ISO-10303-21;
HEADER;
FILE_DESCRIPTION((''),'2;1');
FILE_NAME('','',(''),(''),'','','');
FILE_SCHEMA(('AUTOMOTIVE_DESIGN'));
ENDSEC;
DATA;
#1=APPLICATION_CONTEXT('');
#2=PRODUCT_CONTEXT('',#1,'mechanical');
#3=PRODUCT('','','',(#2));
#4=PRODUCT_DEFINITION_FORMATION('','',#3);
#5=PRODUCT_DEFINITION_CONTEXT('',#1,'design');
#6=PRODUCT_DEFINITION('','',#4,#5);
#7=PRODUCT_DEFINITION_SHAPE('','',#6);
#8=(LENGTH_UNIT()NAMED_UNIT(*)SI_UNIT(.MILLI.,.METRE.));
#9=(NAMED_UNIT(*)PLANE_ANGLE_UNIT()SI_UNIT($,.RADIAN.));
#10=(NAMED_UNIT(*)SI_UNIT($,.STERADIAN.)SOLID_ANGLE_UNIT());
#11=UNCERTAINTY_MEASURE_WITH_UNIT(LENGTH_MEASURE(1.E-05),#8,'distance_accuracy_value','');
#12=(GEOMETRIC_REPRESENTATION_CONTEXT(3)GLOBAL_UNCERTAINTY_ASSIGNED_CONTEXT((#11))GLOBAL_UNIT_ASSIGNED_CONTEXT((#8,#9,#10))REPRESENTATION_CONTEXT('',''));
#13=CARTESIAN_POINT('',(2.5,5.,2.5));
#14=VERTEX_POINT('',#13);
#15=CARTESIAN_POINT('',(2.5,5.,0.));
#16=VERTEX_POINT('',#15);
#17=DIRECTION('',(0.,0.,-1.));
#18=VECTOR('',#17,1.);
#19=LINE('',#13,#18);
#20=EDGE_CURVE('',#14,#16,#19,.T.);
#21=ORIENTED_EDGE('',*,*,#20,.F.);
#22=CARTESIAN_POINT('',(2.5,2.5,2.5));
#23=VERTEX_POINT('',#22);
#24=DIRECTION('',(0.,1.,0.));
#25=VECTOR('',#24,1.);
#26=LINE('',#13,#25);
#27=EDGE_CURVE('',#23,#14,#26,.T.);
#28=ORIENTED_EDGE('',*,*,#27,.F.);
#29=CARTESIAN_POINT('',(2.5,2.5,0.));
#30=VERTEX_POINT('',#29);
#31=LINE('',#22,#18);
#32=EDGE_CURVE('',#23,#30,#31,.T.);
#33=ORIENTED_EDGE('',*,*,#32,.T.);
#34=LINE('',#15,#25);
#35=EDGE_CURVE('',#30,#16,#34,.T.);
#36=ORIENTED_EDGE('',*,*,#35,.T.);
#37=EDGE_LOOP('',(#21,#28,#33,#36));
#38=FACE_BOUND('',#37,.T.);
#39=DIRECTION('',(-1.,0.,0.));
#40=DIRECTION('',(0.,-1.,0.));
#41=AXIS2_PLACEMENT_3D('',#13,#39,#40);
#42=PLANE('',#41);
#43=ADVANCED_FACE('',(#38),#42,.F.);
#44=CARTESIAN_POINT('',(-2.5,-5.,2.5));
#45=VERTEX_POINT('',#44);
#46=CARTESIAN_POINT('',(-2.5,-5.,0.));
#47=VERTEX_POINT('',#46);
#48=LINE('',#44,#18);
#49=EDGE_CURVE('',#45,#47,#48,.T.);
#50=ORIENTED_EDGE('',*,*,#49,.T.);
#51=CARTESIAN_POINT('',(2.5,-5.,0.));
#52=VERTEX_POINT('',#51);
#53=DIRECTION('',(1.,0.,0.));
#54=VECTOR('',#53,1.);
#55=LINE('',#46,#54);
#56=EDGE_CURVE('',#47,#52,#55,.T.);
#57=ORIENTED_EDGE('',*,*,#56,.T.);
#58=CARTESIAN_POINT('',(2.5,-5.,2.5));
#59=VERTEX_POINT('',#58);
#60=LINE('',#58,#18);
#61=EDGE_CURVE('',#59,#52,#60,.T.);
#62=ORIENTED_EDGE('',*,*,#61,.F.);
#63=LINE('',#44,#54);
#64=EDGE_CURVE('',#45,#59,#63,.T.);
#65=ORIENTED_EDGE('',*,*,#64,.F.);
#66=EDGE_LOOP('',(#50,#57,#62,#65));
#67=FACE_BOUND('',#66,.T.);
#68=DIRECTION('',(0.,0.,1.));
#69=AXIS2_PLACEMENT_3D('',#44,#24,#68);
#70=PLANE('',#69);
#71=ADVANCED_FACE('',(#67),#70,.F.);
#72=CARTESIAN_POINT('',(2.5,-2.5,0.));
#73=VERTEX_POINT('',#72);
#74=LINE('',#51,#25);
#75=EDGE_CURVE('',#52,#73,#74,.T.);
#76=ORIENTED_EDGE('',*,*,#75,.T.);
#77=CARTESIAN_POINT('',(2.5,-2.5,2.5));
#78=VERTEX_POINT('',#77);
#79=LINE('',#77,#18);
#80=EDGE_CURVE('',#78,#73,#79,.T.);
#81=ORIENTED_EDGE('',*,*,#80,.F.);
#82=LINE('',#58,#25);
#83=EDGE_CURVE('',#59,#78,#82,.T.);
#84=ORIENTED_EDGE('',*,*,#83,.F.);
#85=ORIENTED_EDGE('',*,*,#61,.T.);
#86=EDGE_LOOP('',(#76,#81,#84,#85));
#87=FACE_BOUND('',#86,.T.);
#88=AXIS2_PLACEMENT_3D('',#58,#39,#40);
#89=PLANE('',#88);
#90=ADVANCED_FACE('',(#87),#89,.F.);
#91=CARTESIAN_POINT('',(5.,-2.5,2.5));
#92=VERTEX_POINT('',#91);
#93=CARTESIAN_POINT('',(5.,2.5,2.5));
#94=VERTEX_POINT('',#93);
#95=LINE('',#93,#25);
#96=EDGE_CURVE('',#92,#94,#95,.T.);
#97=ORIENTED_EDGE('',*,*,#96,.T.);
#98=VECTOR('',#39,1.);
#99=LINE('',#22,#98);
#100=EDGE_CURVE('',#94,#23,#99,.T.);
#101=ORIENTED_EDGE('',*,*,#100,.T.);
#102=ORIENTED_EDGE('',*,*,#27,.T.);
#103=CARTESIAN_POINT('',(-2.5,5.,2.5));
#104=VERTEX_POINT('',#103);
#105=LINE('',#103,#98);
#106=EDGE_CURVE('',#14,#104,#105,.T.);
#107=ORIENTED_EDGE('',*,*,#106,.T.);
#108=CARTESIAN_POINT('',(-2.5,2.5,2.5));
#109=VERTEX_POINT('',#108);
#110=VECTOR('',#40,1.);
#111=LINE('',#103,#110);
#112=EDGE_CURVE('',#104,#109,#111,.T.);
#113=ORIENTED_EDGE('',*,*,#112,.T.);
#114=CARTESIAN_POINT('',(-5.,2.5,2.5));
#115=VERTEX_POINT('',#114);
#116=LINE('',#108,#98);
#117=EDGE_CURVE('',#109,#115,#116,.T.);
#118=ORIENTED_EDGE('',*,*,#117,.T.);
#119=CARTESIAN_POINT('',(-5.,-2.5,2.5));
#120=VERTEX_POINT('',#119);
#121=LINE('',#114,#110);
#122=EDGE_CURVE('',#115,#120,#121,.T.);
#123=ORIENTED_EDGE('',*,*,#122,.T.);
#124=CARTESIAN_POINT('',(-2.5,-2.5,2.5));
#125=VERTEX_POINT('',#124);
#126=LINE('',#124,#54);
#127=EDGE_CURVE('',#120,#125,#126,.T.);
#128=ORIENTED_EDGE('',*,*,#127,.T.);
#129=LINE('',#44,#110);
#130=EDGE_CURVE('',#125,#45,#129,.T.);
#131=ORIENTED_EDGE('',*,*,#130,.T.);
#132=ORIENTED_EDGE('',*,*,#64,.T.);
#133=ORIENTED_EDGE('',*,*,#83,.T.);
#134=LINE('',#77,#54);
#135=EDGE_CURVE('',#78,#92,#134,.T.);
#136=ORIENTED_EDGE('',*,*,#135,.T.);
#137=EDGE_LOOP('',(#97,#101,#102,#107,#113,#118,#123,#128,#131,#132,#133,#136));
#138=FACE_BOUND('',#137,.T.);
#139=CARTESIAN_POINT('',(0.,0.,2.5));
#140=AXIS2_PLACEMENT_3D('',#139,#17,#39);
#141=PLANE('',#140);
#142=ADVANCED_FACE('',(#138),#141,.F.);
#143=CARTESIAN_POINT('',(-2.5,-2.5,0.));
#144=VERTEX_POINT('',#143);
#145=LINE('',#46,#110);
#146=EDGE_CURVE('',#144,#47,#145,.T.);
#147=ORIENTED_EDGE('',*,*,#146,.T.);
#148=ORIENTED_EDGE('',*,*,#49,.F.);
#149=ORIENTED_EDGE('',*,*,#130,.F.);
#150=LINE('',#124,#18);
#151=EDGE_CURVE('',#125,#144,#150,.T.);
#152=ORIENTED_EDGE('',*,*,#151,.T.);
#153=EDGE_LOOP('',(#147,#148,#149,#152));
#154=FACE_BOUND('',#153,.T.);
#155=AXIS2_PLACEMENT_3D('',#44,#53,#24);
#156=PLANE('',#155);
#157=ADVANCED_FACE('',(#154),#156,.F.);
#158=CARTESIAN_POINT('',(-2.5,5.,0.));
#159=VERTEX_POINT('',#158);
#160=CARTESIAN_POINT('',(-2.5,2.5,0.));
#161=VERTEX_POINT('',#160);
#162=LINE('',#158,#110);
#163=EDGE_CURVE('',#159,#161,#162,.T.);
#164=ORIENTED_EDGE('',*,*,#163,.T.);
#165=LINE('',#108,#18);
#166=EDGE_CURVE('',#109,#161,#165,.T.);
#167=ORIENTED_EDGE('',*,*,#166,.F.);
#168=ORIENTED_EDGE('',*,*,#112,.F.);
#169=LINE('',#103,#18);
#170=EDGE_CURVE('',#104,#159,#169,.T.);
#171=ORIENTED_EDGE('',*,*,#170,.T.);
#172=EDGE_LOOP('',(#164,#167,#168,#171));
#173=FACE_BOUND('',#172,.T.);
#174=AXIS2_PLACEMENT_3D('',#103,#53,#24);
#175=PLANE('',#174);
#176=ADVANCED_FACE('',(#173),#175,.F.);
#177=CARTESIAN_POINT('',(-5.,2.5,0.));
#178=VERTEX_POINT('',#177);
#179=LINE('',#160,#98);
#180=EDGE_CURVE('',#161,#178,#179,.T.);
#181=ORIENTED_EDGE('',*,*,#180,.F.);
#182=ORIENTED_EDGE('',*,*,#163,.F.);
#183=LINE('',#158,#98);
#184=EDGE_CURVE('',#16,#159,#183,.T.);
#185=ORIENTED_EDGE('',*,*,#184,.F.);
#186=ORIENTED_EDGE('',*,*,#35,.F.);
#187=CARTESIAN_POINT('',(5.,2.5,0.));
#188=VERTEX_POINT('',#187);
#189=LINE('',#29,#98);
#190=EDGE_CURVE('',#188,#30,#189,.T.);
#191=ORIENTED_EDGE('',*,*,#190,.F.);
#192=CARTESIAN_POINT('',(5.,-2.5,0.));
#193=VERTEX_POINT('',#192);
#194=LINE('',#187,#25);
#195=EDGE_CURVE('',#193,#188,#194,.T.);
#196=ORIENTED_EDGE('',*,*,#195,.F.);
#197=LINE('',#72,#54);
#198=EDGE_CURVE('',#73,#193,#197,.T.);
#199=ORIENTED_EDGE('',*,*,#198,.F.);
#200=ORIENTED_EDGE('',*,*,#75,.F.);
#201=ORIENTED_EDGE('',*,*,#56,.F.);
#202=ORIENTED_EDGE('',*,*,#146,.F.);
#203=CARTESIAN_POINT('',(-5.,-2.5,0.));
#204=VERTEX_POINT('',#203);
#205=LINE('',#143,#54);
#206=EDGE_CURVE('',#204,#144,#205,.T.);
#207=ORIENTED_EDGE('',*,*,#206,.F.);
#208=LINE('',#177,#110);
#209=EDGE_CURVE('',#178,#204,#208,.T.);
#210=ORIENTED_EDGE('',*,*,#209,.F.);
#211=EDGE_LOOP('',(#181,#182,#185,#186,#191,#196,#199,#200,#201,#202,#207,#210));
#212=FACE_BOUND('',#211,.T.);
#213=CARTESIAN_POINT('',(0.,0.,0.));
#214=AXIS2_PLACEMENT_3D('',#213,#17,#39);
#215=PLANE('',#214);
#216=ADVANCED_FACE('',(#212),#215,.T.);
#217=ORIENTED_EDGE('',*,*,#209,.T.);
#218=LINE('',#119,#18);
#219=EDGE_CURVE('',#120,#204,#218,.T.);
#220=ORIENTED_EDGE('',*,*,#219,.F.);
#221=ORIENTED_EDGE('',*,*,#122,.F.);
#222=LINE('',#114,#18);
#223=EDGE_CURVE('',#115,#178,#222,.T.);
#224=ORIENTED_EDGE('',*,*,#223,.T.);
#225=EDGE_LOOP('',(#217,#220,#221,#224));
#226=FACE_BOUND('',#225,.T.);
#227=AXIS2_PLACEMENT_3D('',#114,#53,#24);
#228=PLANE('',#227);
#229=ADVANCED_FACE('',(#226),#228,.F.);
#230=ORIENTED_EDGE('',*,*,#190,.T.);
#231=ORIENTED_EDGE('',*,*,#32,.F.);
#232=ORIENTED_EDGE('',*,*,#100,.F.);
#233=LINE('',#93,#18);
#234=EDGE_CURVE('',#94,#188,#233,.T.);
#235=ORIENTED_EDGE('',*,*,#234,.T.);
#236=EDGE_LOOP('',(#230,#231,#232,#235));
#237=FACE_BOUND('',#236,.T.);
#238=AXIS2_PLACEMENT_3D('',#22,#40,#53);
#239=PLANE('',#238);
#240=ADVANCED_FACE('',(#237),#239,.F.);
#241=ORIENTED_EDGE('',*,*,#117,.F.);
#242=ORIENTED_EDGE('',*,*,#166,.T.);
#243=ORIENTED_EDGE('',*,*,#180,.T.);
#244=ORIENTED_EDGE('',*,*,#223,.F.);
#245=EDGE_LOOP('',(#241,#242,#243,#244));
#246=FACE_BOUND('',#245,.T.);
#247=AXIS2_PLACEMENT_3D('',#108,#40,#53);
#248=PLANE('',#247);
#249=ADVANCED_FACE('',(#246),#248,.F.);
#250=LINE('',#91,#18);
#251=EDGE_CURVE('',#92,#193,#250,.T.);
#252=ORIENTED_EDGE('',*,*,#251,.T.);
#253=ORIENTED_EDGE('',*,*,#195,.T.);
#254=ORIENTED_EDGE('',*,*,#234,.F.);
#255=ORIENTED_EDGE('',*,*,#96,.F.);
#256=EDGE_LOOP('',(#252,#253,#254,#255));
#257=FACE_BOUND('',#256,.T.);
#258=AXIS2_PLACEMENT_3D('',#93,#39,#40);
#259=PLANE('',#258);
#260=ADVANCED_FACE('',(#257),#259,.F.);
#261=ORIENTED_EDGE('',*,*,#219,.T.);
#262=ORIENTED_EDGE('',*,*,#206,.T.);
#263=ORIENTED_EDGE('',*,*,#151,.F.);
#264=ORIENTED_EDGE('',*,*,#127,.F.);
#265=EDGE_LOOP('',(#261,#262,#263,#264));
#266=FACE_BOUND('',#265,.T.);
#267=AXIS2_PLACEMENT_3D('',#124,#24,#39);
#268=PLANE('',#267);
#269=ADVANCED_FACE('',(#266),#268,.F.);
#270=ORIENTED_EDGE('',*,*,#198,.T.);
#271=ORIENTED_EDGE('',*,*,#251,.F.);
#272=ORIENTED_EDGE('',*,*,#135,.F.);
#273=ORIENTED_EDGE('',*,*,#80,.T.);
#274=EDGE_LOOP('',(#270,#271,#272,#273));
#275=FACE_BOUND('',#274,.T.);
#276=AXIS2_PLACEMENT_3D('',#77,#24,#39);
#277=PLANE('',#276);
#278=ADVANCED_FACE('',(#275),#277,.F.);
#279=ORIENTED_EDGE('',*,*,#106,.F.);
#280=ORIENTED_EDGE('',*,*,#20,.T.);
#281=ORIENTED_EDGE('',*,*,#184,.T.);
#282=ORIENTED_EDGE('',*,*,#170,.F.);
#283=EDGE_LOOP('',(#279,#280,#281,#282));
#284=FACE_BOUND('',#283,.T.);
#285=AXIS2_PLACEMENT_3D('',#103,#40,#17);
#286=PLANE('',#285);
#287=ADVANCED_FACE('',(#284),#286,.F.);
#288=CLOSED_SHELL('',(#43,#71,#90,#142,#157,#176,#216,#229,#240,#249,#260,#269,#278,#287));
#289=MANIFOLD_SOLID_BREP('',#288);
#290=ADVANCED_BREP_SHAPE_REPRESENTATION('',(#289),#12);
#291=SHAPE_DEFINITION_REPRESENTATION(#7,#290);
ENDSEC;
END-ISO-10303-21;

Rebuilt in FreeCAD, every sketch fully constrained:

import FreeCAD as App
import Part
import Sketcher
from FreeCAD import Vector
Q = App.Units.Quantity


def add_polygon(sketch, points):
    """Adds a closed chain of lines whose ends are joined by coincident constraints."""
    first, n = sketch.GeometryCount, len(points)
    for a, b in zip(points, points[1:] + points[:1]):
        sketch.addGeometry(Part.LineSegment(App.Vector(*a, 0), App.Vector(*b, 0)), False)
    for i in range(n):
        sketch.addConstraint(Sketcher.Constraint("Coincident", first + i, 2, first + (i + 1) % n, 1))

doc = App.newDocument("Part")
params = doc.addObject("Spreadsheet::Sheet", "Params")
for row, (alias, value) in enumerate([
    ("sketch1_width", "5 mm"),
    ("sketch1_width2", "2.5 mm"),
    ("pad1_length", "2.5 mm"),
], start=1):
    params.set(f"A{row}", alias)
    params.set(f"B{row}", "=" + value)
    params.setAlias(f"B{row}", alias)

body = doc.addObject("PartDesign::Body", "Body")

# Sketch on XY plane
sketch1 = doc.addObject("Sketcher::SketchObject", "Sketch")
body.addObject(sketch1)
sketch1.AttachmentSupport = (doc.XY_Plane, [""])
sketch1.MapMode = "FlatFace"
add_polygon(sketch1, [(-2.5, 5), (-2.5, 2.5), (-5, 2.5), (-5, -2.5), (-2.5, -2.5), (-2.5, -5), (2.5, -5), (2.5, -2.5), (5, -2.5), (5, 2.5), (2.5, 2.5), (2.5, 5)])  # lines 0-11
sketch1.addConstraint([
    Sketcher.Constraint("Vertical", 0),
    Sketcher.Constraint("Horizontal", 1),
    Sketcher.Constraint("Vertical", 2),
    Sketcher.Constraint("Horizontal", 3),
    Sketcher.Constraint("Vertical", 4),
    Sketcher.Constraint("Horizontal", 5),
    Sketcher.Constraint("Vertical", 6),
    Sketcher.Constraint("Horizontal", 7),
    Sketcher.Constraint("Vertical", 8),
    Sketcher.Constraint("Horizontal", 9),
    Sketcher.Constraint("Vertical", 10),
    Sketcher.Constraint("Horizontal", 11),
    Sketcher.Constraint("Symmetric", 0, 2, 6, 2, -1, 1),
    Sketcher.Constraint("Symmetric", 2, 2, 8, 2, -1, 1),
    Sketcher.Constraint("Symmetric", 4, 2, 10, 2, -1, 1),
    Sketcher.Constraint("Symmetric", 3, 2, 6, 2, -2),
    Sketcher.Constraint("Equal", 9, 0),
    Sketcher.Constraint("Equal", 11, 2),
    Sketcher.Constraint("DistanceX", 5, 1, 5, 2, Q("5 mm")),
    Sketcher.Constraint("DistanceX", 1, 2, 1, 1, Q("2.5 mm")),
])
sketch1.setExpression("Constraints[30]", "Params.sketch1_width")
sketch1.setExpression("Constraints[31]", "Params.sketch1_width2")
pad1 = doc.addObject("PartDesign::Pad", "Pad")
body.addObject(pad1)
pad1.Profile = sketch1
pad1.setExpression("Length", "Params.pad1_length")

doc.recompute()
